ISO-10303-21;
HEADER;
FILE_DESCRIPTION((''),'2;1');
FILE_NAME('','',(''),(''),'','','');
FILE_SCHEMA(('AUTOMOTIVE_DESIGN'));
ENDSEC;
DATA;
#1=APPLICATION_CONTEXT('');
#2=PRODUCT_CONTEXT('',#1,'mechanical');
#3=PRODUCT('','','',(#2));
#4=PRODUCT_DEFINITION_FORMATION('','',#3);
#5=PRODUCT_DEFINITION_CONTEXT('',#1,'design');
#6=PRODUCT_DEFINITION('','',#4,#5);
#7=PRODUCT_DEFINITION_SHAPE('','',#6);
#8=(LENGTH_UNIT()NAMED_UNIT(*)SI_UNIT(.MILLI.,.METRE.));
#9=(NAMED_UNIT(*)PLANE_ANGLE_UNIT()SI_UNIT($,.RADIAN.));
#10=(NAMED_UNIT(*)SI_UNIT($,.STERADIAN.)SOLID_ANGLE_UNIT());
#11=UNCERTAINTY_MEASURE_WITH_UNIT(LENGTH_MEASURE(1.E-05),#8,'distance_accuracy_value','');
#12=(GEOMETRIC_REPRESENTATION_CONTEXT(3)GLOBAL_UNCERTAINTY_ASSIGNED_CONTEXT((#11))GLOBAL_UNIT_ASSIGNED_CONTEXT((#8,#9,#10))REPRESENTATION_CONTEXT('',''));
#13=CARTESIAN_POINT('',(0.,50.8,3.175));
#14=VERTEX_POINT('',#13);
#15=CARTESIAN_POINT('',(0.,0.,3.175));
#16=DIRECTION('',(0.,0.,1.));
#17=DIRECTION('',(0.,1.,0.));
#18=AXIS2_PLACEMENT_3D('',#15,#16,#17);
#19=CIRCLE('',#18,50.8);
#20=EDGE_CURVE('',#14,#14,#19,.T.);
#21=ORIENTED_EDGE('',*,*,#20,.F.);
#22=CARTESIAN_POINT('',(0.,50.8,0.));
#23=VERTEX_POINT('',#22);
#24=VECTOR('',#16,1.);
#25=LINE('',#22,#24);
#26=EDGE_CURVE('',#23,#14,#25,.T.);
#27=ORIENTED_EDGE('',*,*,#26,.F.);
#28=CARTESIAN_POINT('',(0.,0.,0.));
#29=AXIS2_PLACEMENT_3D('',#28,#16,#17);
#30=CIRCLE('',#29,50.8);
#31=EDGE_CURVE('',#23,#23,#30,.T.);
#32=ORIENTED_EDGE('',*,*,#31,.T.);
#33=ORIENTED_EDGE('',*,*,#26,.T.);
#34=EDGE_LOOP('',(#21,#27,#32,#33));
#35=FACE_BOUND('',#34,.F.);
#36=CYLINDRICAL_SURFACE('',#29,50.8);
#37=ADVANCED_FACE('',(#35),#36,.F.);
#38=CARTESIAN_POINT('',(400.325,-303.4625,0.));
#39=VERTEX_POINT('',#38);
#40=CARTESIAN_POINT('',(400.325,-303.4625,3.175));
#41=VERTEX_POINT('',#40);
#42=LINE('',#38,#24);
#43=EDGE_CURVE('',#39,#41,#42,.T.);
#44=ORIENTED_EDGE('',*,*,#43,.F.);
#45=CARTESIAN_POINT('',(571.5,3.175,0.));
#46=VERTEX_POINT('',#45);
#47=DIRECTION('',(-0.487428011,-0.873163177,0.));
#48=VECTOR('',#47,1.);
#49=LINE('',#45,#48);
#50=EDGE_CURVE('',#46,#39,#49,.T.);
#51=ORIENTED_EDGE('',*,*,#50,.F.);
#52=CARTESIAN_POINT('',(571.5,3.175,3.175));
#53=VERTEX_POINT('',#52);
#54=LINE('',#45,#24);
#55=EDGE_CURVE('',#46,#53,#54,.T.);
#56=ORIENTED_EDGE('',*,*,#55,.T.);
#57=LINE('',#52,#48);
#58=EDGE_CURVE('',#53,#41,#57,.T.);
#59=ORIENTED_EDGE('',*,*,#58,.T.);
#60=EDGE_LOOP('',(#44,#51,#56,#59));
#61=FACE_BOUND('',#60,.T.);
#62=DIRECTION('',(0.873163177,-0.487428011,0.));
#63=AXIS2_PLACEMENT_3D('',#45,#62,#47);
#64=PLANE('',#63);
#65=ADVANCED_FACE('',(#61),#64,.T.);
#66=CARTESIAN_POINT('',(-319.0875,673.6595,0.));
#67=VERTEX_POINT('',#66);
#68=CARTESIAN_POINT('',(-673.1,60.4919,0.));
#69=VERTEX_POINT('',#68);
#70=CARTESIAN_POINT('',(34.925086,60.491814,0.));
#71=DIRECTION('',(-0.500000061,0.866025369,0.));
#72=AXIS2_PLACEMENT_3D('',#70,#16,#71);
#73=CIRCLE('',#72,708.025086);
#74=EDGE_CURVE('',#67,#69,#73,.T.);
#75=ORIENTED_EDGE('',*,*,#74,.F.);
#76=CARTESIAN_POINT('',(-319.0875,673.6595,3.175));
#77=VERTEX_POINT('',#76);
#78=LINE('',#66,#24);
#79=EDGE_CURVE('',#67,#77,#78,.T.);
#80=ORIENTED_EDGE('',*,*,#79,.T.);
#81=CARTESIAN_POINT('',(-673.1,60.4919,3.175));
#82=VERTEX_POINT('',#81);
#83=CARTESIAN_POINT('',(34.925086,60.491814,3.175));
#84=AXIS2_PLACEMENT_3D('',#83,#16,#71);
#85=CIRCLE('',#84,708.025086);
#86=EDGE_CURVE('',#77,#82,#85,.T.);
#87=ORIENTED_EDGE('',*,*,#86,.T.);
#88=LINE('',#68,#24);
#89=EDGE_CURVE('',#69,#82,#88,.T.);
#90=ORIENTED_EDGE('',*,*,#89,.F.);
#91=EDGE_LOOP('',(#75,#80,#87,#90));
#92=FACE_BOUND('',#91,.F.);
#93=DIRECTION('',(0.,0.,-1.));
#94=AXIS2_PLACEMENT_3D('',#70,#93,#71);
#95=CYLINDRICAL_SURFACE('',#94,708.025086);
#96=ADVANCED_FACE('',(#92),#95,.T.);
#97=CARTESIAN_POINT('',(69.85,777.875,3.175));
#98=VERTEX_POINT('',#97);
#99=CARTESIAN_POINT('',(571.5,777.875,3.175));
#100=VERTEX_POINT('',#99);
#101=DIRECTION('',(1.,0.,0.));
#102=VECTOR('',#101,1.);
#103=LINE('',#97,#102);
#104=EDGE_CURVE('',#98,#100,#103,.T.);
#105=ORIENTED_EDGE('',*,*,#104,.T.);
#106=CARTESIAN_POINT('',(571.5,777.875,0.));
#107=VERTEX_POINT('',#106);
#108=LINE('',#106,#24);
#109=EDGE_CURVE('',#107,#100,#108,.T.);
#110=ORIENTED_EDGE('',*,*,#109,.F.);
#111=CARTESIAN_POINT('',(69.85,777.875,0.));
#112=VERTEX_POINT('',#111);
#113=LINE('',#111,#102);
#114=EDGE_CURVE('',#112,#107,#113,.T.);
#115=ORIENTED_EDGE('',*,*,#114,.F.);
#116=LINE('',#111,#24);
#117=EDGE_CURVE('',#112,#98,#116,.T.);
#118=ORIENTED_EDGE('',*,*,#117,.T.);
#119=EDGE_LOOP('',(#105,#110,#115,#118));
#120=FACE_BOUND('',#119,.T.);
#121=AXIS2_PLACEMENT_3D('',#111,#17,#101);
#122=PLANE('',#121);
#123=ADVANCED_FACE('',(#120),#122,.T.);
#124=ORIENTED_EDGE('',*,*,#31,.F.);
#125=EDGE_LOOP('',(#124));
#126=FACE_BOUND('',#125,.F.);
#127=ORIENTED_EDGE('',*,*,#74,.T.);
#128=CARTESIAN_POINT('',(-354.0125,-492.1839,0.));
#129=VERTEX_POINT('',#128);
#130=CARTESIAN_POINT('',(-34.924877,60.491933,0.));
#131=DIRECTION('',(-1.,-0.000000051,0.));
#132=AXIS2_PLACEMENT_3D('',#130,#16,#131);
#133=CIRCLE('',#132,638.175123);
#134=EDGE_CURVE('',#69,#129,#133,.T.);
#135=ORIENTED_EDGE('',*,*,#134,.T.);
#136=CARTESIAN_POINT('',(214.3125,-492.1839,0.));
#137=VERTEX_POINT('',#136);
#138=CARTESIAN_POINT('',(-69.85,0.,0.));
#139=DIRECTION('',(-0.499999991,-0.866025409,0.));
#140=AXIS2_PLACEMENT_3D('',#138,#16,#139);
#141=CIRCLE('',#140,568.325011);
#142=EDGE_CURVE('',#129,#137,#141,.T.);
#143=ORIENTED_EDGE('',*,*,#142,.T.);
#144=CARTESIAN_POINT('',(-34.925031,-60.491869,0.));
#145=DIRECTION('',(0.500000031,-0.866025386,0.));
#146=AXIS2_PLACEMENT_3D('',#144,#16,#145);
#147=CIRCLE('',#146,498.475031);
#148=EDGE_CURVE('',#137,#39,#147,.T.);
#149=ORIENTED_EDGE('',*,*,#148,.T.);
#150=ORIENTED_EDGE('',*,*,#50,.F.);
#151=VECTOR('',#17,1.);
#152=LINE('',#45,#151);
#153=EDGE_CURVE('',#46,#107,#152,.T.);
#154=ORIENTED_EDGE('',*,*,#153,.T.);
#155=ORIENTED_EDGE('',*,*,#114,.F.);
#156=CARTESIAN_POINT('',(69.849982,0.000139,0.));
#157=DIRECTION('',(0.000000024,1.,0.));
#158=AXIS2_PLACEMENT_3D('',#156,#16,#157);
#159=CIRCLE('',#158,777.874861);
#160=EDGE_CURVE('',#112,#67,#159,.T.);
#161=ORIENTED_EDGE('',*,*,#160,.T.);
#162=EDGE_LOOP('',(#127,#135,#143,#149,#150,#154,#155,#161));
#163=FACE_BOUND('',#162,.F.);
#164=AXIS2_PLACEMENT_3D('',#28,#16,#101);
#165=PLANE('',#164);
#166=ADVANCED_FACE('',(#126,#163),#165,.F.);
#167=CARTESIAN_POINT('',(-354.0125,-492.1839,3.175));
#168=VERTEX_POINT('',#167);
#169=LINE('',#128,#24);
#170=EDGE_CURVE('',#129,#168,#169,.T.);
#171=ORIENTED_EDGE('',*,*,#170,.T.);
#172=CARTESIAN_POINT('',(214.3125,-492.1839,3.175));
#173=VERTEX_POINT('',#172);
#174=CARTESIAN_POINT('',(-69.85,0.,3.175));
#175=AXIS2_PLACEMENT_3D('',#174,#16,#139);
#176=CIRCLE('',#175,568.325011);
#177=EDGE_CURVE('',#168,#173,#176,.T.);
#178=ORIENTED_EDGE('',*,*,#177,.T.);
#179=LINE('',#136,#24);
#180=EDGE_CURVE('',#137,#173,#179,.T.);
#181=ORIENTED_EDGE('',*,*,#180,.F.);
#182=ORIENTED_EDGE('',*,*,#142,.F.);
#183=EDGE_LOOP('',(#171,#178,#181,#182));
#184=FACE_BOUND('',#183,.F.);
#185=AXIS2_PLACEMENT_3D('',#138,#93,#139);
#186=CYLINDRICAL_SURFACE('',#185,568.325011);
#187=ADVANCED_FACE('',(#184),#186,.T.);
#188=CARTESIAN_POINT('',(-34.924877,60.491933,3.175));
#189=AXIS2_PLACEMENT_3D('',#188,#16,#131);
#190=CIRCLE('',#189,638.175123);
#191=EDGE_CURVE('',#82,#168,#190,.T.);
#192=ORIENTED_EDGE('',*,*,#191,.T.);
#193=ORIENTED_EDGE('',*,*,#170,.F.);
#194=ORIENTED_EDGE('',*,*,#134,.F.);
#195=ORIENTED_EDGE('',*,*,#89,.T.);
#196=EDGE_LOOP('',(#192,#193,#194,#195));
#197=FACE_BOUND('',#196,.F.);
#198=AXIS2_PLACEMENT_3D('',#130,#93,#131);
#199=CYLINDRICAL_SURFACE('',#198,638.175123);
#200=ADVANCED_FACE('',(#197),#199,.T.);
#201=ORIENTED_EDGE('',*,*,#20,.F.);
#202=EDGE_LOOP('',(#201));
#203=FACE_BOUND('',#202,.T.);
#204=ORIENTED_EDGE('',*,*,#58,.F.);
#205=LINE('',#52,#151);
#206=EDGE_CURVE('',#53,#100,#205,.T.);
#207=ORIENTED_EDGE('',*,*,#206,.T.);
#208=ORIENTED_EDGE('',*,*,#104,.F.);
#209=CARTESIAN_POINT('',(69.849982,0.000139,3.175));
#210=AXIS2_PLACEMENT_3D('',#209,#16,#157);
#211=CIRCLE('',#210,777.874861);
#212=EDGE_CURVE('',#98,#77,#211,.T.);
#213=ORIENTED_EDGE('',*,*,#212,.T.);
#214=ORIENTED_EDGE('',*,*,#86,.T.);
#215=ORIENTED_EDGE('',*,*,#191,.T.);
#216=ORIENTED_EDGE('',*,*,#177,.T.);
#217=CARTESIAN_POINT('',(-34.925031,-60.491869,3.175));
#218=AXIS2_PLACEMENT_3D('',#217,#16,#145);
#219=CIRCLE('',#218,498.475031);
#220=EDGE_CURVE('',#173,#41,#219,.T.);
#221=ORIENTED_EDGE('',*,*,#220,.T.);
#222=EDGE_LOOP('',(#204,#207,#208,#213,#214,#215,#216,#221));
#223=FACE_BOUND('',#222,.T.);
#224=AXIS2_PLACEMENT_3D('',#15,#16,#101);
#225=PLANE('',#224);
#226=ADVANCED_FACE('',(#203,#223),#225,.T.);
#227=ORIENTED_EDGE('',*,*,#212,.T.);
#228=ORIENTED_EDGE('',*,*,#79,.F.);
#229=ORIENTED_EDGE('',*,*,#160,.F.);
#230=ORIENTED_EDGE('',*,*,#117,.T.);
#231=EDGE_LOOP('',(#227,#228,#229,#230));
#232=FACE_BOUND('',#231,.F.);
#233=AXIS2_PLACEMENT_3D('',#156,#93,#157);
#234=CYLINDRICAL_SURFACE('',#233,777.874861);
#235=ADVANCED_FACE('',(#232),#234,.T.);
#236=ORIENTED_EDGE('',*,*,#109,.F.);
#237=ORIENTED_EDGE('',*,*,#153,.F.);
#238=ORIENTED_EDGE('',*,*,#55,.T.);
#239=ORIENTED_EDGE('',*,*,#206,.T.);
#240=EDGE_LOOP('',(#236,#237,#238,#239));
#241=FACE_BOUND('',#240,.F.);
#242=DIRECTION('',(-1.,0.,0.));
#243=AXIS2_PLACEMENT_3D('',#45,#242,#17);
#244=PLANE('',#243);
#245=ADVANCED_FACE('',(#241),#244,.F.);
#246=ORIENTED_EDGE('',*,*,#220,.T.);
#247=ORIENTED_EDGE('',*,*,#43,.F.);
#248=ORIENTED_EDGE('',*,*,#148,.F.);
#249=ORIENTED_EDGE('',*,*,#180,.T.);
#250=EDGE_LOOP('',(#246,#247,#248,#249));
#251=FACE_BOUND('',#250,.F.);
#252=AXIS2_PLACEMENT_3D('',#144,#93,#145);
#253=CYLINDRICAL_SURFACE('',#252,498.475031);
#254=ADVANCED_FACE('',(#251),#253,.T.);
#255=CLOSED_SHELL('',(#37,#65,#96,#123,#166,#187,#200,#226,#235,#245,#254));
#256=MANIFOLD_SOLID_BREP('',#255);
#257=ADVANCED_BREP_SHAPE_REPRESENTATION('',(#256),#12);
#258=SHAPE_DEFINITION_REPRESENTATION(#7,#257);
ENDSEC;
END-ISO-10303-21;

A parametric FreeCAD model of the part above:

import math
import FreeCAD as App
import Part
import Sketcher
from FreeCAD import Vector
Q = App.Units.Quantity

doc = App.newDocument("Part")
body = doc.addObject("PartDesign::Body", "Body")

# Sketch on XY plane
sketch1 = doc.addObject("Sketcher::SketchObject", "Sketch")
body.addObject(sketch1)
sketch1.AttachmentSupport = (doc.XY_Plane, [""])
sketch1.MapMode = "FlatFace"
sketch1.addGeometry([
    Part.LineSegment(Vector(571.5, 777.875, 0), Vector(69.85, 777.875, 0)),  # 0
    Part.ArcOfCircle(Part.Circle(Vector(69.85, 0, 0), Vector(0, 0, 1), 777.875), math.radians(90), math.radians(120)),  # 1
    Part.ArcOfCircle(Part.Circle(Vector(34.925, 60.4919, 0), Vector(0, 0, 1), 708.024968), math.radians(120.000001), math.radians(180)),  # 2
    Part.ArcOfCircle(Part.Circle(Vector(-34.925, 60.4919, 0), Vector(0, 0, 1), 638.175), math.radians(180), math.radians(240.000002)),  # 3
    Part.ArcOfCircle(Part.Circle(Vector(-69.85, 0, 0), Vector(0, 0, 1), 568.325011), math.radians(-119.999999), math.radians(-60.000001)),  # 4
    Part.ArcOfCircle(Part.Circle(Vector(-34.925, -60.4919, 0), Vector(0, 0, 1), 498.474989), math.radians(-59.999999), math.radians(-29.171665)),  # 5
    Part.LineSegment(Vector(400.325, -303.4625, 0), Vector(571.5, 3.175, 0)),  # 6
    Part.LineSegment(Vector(571.5, 3.175, 0), Vector(571.5, 777.875, 0)),  # 7
], False)
sketch1.addConstraint([
    Sketcher.Constraint("Tangent", 0, 2, 1, 1),
    Sketcher.Constraint("Tangent", 1, 2, 2, 1),
    Sketcher.Constraint("Tangent", 2, 2, 3, 1),
    Sketcher.Constraint("Tangent", 3, 2, 4, 1),
    Sketcher.Constraint("Tangent", 4, 2, 5, 1),
    Sketcher.Constraint("Tangent", 5, 2, 6, 1),
    Sketcher.Constraint("Coincident", 6, 2, 7, 1),
    Sketcher.Constraint("Coincident", 7, 2, 0, 1),
    Sketcher.Constraint("Horizontal", 0),
    Sketcher.Constraint("Vertical", 7),
    Sketcher.Constraint("Symmetric", 1, 3, 4, 3, -1, 1),
    Sketcher.Constraint("Symmetric", 2, 3, 5, 3, -1, 1),
    Sketcher.Constraint("Symmetric", 2, 3, 3, 3, -2),
    Sketcher.Constraint("PointOnObject", 1, 3, -1),
    Sketcher.Constraint("DistanceY", 7, 1, 7, 2, Q("30.5 in")),
    Sketcher.Constraint("Radius", 1, Q("30.625 in")),
    Sketcher.Constraint("Radius", 5, Q("19.625 in")),
    Sketcher.Constraint("DistanceX", -1, 1, 6, 2, Q("22.5 in")),
    Sketcher.Constraint("DistanceX", 4, 3, 1, 3, Q("5.5 in")),
    Sketcher.Constraint("Radius", 2, Q("27.875 in")),
])
pad1 = doc.addObject("PartDesign::Pad", "Pad")
body.addObject(pad1)
pad1.Profile = sketch1
pad1.Length = Q("0.125 in")

# Sketch on XY plane
sketch2 = doc.addObject("Sketcher::SketchObject", "Sketch001")
body.addObject(sketch2)
sketch2.AttachmentSupport = (doc.XY_Plane, [""])
sketch2.MapMode = "FlatFace"
sketch2.addGeometry(Part.Circle(Vector(0, 0, 0), Vector(0, 0, 1), 50.8), False)
sketch2.addConstraint([
    Sketcher.Constraint("Coincident", 0, 3, -1, 1),
    Sketcher.Constraint("Diameter", 0, Q("4 in")),
])
doc.recompute()
hole = doc.addObject("PartDesign::Hole", "Hole")
body.addObject(hole)
hole.Profile = sketch2
hole.ThreadType = "None"
hole.Diameter = Q("4 in")
hole.DepthType = "ThroughAll"
hole.Reversed = True

doc.recompute()
